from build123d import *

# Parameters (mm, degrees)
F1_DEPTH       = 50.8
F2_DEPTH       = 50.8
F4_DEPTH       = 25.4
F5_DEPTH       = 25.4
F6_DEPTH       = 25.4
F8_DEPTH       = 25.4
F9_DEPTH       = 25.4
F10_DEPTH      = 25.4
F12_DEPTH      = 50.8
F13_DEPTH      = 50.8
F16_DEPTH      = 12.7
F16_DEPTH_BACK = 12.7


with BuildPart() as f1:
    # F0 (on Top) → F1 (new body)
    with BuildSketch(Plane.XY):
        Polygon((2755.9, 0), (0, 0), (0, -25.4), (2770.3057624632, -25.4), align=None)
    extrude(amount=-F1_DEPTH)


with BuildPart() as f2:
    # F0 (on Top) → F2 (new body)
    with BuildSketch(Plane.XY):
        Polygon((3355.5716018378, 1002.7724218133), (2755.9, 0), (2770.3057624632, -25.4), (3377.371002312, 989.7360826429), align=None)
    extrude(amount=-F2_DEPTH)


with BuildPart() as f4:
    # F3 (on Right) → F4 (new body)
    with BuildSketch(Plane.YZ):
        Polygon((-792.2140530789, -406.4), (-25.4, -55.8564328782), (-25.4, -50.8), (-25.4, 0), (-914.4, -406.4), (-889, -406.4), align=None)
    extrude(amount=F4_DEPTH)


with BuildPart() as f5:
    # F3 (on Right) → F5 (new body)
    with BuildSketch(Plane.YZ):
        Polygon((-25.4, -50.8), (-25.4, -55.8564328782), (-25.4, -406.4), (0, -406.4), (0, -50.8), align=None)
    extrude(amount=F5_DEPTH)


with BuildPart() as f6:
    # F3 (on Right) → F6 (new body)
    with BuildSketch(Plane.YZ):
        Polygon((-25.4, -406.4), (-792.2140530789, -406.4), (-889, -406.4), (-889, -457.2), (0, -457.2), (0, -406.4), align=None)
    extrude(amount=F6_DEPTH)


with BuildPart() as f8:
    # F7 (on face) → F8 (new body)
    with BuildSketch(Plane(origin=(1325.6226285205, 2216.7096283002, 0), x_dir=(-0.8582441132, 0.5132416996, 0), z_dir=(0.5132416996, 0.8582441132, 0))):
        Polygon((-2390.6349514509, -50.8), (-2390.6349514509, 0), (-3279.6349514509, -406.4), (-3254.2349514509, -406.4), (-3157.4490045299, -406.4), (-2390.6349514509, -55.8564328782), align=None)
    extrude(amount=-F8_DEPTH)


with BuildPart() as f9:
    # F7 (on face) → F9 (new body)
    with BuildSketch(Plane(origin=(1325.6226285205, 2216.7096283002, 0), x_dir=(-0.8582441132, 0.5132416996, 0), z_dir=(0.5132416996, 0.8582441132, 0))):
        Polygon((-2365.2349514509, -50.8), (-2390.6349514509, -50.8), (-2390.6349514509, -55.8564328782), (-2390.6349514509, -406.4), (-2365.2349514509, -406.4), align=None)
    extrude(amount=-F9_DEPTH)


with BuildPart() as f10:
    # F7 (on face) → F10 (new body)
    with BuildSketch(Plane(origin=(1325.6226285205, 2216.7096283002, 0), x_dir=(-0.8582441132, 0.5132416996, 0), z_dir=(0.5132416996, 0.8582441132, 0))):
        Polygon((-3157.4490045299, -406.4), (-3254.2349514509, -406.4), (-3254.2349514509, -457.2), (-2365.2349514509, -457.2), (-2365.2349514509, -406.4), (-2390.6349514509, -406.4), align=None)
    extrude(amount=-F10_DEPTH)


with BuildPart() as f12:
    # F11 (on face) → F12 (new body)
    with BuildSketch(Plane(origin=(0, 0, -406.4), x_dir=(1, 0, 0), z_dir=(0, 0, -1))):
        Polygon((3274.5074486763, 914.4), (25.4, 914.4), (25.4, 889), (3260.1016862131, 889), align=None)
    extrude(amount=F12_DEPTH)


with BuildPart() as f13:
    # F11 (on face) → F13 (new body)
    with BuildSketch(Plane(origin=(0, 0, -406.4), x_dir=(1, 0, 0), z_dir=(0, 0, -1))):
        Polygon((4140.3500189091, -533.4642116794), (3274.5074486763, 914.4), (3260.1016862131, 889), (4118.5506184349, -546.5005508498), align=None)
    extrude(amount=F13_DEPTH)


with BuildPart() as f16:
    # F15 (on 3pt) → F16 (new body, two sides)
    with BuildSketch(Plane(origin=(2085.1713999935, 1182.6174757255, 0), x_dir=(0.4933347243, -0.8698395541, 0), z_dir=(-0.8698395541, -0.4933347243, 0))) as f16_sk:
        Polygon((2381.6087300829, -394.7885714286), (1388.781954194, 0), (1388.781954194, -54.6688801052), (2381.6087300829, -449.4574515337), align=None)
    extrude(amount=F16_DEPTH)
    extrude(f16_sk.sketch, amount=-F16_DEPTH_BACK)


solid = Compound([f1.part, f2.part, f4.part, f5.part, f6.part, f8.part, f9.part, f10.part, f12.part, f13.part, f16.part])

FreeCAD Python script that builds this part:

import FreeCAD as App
import Part
import Sketcher
Q = App.Units.Quantity

doc = App.newDocument("Part")
body = doc.addObject("PartDesign::Body", "Body")

# Sketch on XY plane
sketch1 = body.newObject("Sketcher::SketchObject", "Sketch")
sketch1.AttachmentSupport = (doc.getObject("XY_Plane"), [""])
sketch1.MapMode = "FlatFace"
sketch1.addGeometry(Part.LineSegment(App.Vector(2756, 0, 0), App.Vector(0, 0, 0)), False)
sketch1.addGeometry(Part.LineSegment(App.Vector(0, 0, 0), App.Vector(0, -25, 0)), False)
sketch1.addGeometry(Part.LineSegment(App.Vector(0, -25, 0), App.Vector(2770, -25, 0)), False)
sketch1.addGeometry(Part.LineSegment(App.Vector(2770, -25, 0), App.Vector(2756, 0, 0)), False)
sketch1.addConstraint(Sketcher.Constraint("Coincident", 0, 2, 1, 1))
sketch1.addConstraint(Sketcher.Constraint("Coincident", 1, 2, 2, 1))
sketch1.addConstraint(Sketcher.Constraint("Coincident", 2, 2, 3, 1))
sketch1.addConstraint(Sketcher.Constraint("Coincident", 3, 2, 0, 1))
sketch1.addConstraint(Sketcher.Constraint("Horizontal", 0))
sketch1.addConstraint(Sketcher.Constraint("Vertical", 1))
sketch1.addConstraint(Sketcher.Constraint("Horizontal", 2))
sketch1.addConstraint(Sketcher.Constraint("Coincident", 0, 2, -1, 1))
sketch1.addConstraint(Sketcher.Constraint("DistanceY", 1, 2, 1, 1, Q("1 in")))
sketch1.addConstraint(Sketcher.Constraint("DistanceX", 0, 2, 0, 1, Q("108.5 in")))
sketch1.addConstraint(Sketcher.Constraint("Angle", 3, Q("119.56 deg")))
pad1 = body.newObject("PartDesign::Pad", "Pad")
pad1.Profile = sketch1
pad1.Length = Q("2 in")
pad1.Reversed = True
body2 = doc.addObject("PartDesign::Body", "Body001")

# Sketch on XY plane
sketch2 = body2.newObject("Sketcher::SketchObject", "Sketch001")
sketch2.AttachmentSupport = (doc.getObject("XY_Plane001"), [""])
sketch2.MapMode = "FlatFace"
sketch2.addGeometry(Part.LineSegment(App.Vector(3356, 1003, 0), App.Vector(2756, 0, 0)), False)
sketch2.addGeometry(Part.LineSegment(App.Vector(2756, 0, 0), App.Vector(2770, -25, 0)), False)
sketch2.addGeometry(Part.LineSegment(App.Vector(2770, -25, 0), App.Vector(3377, 990, 0)), False)
sketch2.addGeometry(Part.LineSegment(App.Vector(3377, 990, 0), App.Vector(3356, 1003, 0)), False)
sketch2.addConstraint(Sketcher.Constraint("Coincident", 0, 2, 1, 1))
sketch2.addConstraint(Sketcher.Constraint("Coincident", 1, 2, 2, 1))
sketch2.addConstraint(Sketcher.Constraint("Coincident", 2, 2, 3, 1))
sketch2.addConstraint(Sketcher.Constraint("Coincident", 3, 2, 0, 1))
sketch2.addConstraint(Sketcher.Constraint("PointOnObject", 0, 2, -1))
sketch2.addConstraint(Sketcher.Constraint("Parallel", 0, 2))
sketch2.addConstraint(Sketcher.Constraint("Perpendicular", 2, 3))
sketch2.addConstraint(Sketcher.Constraint("Distance", 0, Q("46 in")))
sketch2.addConstraint(Sketcher.Constraint("Distance", 3, Q("1 in")))
sketch2.addConstraint(Sketcher.Constraint("DistanceY", 1, 2, -1, 1, Q("1 in")))
sketch2.addConstraint(Sketcher.Constraint("DistanceX", -1, 1, 0, 2, Q("108.5 in")))
sketch2.addConstraint(Sketcher.Constraint("Angle", 0, Q("-120.88 deg")))
pad2 = body2.newObject("PartDesign::Pad", "Pad001")
pad2.Profile = sketch2
pad2.Length = Q("2 in")
pad2.Reversed = True
body3 = doc.addObject("PartDesign::Body", "Body002")

# Sketch on YZ plane
sketch3 = body3.newObject("Sketcher::SketchObject", "Sketch002")
sketch3.AttachmentSupport = (doc.getObject("YZ_Plane002"), [""])
sketch3.MapMode = "FlatFace"
sketch3.addGeometry(Part.LineSegment(App.Vector(-792, -406, 0), App.Vector(-25, -56, 0)), False)
sketch3.addGeometry(Part.LineSegment(App.Vector(-25, -56, 0), App.Vector(-25, 0, 0)), False)
sketch3.addGeometry(Part.LineSegment(App.Vector(-25, 0, 0), App.Vector(-914, -406, 0)), False)
sketch3.addGeometry(Part.LineSegment(App.Vector(-914, -406, 0), App.Vector(-792, -406, 0)), False)
sketch3.addConstraint(Sketcher.Constraint("Coincident", 0, 2, 1, 1))
sketch3.addConstraint(Sketcher.Constraint("Coincident", 1, 2, 2, 1))
sketch3.addConstraint(Sketcher.Constraint("Coincident", 2, 2, 3, 1))
sketch3.addConstraint(Sketcher.Constraint("Coincident", 3, 2, 0, 1))
sketch3.addConstraint(Sketcher.Constraint("Vertical", 1))
sketch3.addConstraint(Sketcher.Constraint("Horizontal", 3))
sketch3.addConstraint(Sketcher.Constraint("PointOnObject", 1, 2, -1))
sketch3.addConstraint(Sketcher.Constraint("Parallel", 0, 2))
sketch3.addConstraint(Sketcher.Constraint("DistanceX", 0, 2, -1, 1, Q("1 in")))
sketch3.addConstraint(Sketcher.Constraint("DistanceX", 2, 2, -1, 1, Q("36 in")))
sketch3.addConstraint(Sketcher.Constraint("DistanceY", 2, 2, -1, 1, Q("16 in")))
sketch3.addConstraint(Sketcher.Constraint("Distance", 0, 843.139718))
pad3 = body3.newObject("PartDesign::Pad", "Pad002")
pad3.Profile = sketch3
pad3.Length = Q("1 in")
body4 = doc.addObject("PartDesign::Body", "Body003")

# Sketch on YZ plane
sketch4 = body4.newObject("Sketcher::SketchObject", "Sketch003")
sketch4.AttachmentSupport = (doc.getObject("YZ_Plane003"), [""])
sketch4.MapMode = "FlatFace"
sketch4.addGeometry(Part.LineSegment(App.Vector(-25, -51, 0), App.Vector(-25, -406, 0)), False)
sketch4.addGeometry(Part.LineSegment(App.Vector(-25, -406, 0), App.Vector(0, -406, 0)), False)
sketch4.addGeometry(Part.LineSegment(App.Vector(0, -406, 0), App.Vector(0, -51, 0)), False)
sketch4.addGeometry(Part.LineSegment(App.Vector(0, -51, 0), App.Vector(-25, -51, 0)), False)
sketch4.addConstraint(Sketcher.Constraint("Coincident", 0, 2, 1, 1))
sketch4.addConstraint(Sketcher.Constraint("Coincident", 1, 2, 2, 1))
sketch4.addConstraint(Sketcher.Constraint("Coincident", 2, 2, 3, 1))
sketch4.addConstraint(Sketcher.Constraint("Coincident", 3, 2, 0, 1))
sketch4.addConstraint(Sketcher.Constraint("Vertical", 0))
sketch4.addConstraint(Sketcher.Constraint("Horizontal", 1))
sketch4.addConstraint(Sketcher.Constraint("Vertical", 2))
sketch4.addConstraint(Sketcher.Constraint("Horizontal", 3))
sketch4.addConstraint(Sketcher.Constraint("PointOnObject", 1, 2, -2))
sketch4.addConstraint(Sketcher.Constraint("DistanceX", 1, 1, 1, 2, Q("1 in")))
sketch4.addConstraint(Sketcher.Constraint("DistanceY", 0, 2, 0, 1, Q("14 in")))
sketch4.addConstraint(Sketcher.Constraint("DistanceY", 0, 2, -1, 1, Q("16 in")))
pad4 = body4.newObject("PartDesign::Pad", "Pad003")
pad4.Profile = sketch4
pad4.Length = Q("1 in")
body5 = doc.addObject("PartDesign::Body", "Body004")

# Sketch on YZ plane
sketch5 = body5.newObject("Sketcher::SketchObject", "Sketch004")
sketch5.AttachmentSupport = (doc.getObject("YZ_Plane004"), [""])
sketch5.MapMode = "FlatFace"
sketch5.addGeometry(Part.LineSegment(App.Vector(-889, -406, 0), App.Vector(-889, -457, 0)), False)
sketch5.addGeometry(Part.LineSegment(App.Vector(-889, -457, 0), App.Vector(0, -457, 0)), False)
sketch5.addGeometry(Part.LineSegment(App.Vector(0, -457, 0), App.Vector(0, -406, 0)), False)
sketch5.addGeometry(Part.LineSegment(App.Vector(0, -406, 0), App.Vector(-889, -406, 0)), False)
sketch5.addConstraint(Sketcher.Constraint("Coincident", 0, 2, 1, 1))
sketch5.addConstraint(Sketcher.Constraint("Coincident", 1, 2, 2, 1))
sketch5.addConstraint(Sketcher.Constraint("Coincident", 2, 2, 3, 1))
sketch5.addConstraint(Sketcher.Constraint("Coincident", 3, 2, 0, 1))
sketch5.addConstraint(Sketcher.Constraint("Vertical", 0))
sketch5.addConstraint(Sketcher.Constraint("Horizontal", 1))
sketch5.addConstraint(Sketcher.Constraint("Vertical", 2))
sketch5.addConstraint(Sketcher.Constraint("Horizontal", 3))
sketch5.addConstraint(Sketcher.Constraint("PointOnObject", 1, 2, -2))
sketch5.addConstraint(Sketcher.Constraint("DistanceX", 1, 1, 1, 2, Q("35 in")))
sketch5.addConstraint(Sketcher.Constraint("DistanceY", 0, 2, 0, 1, Q("2 in")))
sketch5.addConstraint(Sketcher.Constraint("DistanceY", 0, 2, -1, 1, Q("18 in")))
pad5 = body5.newObject("PartDesign::Pad", "Pad004")
pad5.Profile = sketch5
pad5.Length = Q("1 in")
body6 = doc.addObject("PartDesign::Body", "Body005")

# Sketch on an angled plane
sketch6 = body6.newObject("Sketcher::SketchObject", "Sketch005")
sketch6.Placement = App.Placement(App.Vector(1325.622629, 2216.709628, 0), App.Rotation(App.Vector(-0.858244113, 0.5132417, 0), App.Vector(0, 0, 1), App.Vector(0.5132417, 0.858244113, 0), "ZXY"))
sketch6.addGeometry(Part.LineSegment(App.Vector(-2391, 0, 0), App.Vector(-3280, -406, 0)), False)
sketch6.addGeometry(Part.LineSegment(App.Vector(-3280, -406, 0), App.Vector(-3157, -406, 0)), False)
sketch6.addGeometry(Part.LineSegment(App.Vector(-3157, -406, 0), App.Vector(-2391, -56, 0)), False)
sketch6.addGeometry(Part.LineSegment(App.Vector(-2391, -56, 0), App.Vector(-2391, 0, 0)), False)
sketch6.addConstraint(Sketcher.Constraint("Coincident", 0, 2, 1, 1))
sketch6.addConstraint(Sketcher.Constraint("Coincident", 1, 2, 2, 1))
sketch6.addConstraint(Sketcher.Constraint("Coincident", 2, 2, 3, 1))
sketch6.addConstraint(Sketcher.Constraint("Coincident", 3, 2, 0, 1))
sketch6.addConstraint(Sketcher.Constraint("Horizontal", 1))
sketch6.addConstraint(Sketcher.Constraint("Vertical", 3))
sketch6.addConstraint(Sketcher.Constraint("PointOnObject", 3, 2, -1))
sketch6.addConstraint(Sketcher.Constraint("Parallel", 0, 2))
sketch6.addConstraint(Sketcher.Constraint("DistanceY", 0, 2, -1, 1, Q("16 in")))
sketch6.addConstraint(Sketcher.Constraint("DistanceX", 0, 2, 2, 2, Q("35 in")))
sketch6.addConstraint(Sketcher.Constraint("Distance", 2, 843.139718))
sketch6.addConstraint(Sketcher.Constraint("DistanceX", 0, 2, -1, 1, 3279.634952))
pad6 = body6.newObject("PartDesign::Pad", "Pad005")
pad6.Profile = sketch6
pad6.Length = Q("1 in")
pad6.Reversed = True
body7 = doc.addObject("PartDesign::Body", "Body006")

# Sketch on an angled plane
sketch7 = body7.newObject("Sketcher::SketchObject", "Sketch006")
sketch7.Placement = App.Placement(App.Vector(1325.622629, 2216.709628, 0), App.Rotation(App.Vector(-0.858244113, 0.5132417, 0), App.Vector(0, 0, 1), App.Vector(0.5132417, 0.858244113, 0), "ZXY"))
sketch7.addGeometry(Part.LineSegment(App.Vector(-2365, -51, 0), App.Vector(-2391, -51, 0)), False)
sketch7.addGeometry(Part.LineSegment(App.Vector(-2391, -51, 0), App.Vector(-2391, -406, 0)), False)
sketch7.addGeometry(Part.LineSegment(App.Vector(-2391, -406, 0), App.Vector(-2365, -406, 0)), False)
sketch7.addGeometry(Part.LineSegment(App.Vector(-2365, -406, 0), App.Vector(-2365, -51, 0)), False)
sketch7.addConstraint(Sketcher.Constraint("Coincident", 0, 2, 1, 1))
sketch7.addConstraint(Sketcher.Constraint("Coincident", 1, 2, 2, 1))
sketch7.addConstraint(Sketcher.Constraint("Coincident", 2, 2, 3, 1))
sketch7.addConstraint(Sketcher.Constraint("Coincident", 3, 2, 0, 1))
sketch7.addConstraint(Sketcher.Constraint("Horizontal", 0))
sketch7.addConstraint(Sketcher.Constraint("Vertical", 1))
sketch7.addConstraint(Sketcher.Constraint("Horizontal", 2))
sketch7.addConstraint(Sketcher.Constraint("Vertical", 3))
sketch7.addConstraint(Sketcher.Constraint("DistanceX", 0, 2, 0, 1, Q("1 in")))
sketch7.addConstraint(Sketcher.Constraint("DistanceY", 1, 2, 1, 1, Q("14 in")))
sketch7.addConstraint(Sketcher.Constraint("DistanceY", 0, 2, -1, 1, Q("2 in")))
sketch7.addConstraint(Sketcher.Constraint("DistanceX", 0, 2, -1, 1, 2390.634952))
pad7 = body7.newObject("PartDesign::Pad", "Pad006")
pad7.Profile = sketch7
pad7.Length = Q("1 in")
pad7.Reversed = True
body8 = doc.addObject("PartDesign::Body", "Body007")

# Sketch on an angled plane
sketch8 = body8.newObject("Sketcher::SketchObject", "Sketch007")
sketch8.Placement = App.Placement(App.Vector(1325.622629, 2216.709628, 0), App.Rotation(App.Vector(-0.858244113, 0.5132417, 0), App.Vector(0, 0, 1), App.Vector(0.5132417, 0.858244113, 0), "ZXY"))
sketch8.addGeometry(Part.LineSegment(App.Vector(-3254, -406, 0), App.Vector(-3254, -457, 0)), False)
sketch8.addGeometry(Part.LineSegment(App.Vector(-3254, -457, 0), App.Vector(-2365, -457, 0)), False)
sketch8.addGeometry(Part.LineSegment(App.Vector(-2365, -457, 0), App.Vector(-2365, -406, 0)), False)
sketch8.addGeometry(Part.LineSegment(App.Vector(-2365, -406, 0), App.Vector(-3254, -406, 0)), False)
sketch8.addConstraint(Sketcher.Constraint("Coincident", 0, 2, 1, 1))
sketch8.addConstraint(Sketcher.Constraint("Coincident", 1, 2, 2, 1))
sketch8.addConstraint(Sketcher.Constraint("Coincident", 2, 2, 3, 1))
sketch8.addConstraint(Sketcher.Constraint("Coincident", 3, 2, 0, 1))
sketch8.addConstraint(Sketcher.Constraint("Vertical", 0))
sketch8.addConstraint(Sketcher.Constraint("Horizontal", 1))
sketch8.addConstraint(Sketcher.Constraint("Vertical", 2))
sketch8.addConstraint(Sketcher.Constraint("Horizontal", 3))
sketch8.addConstraint(Sketcher.Constraint("DistanceX", 1, 1, 1, 2, Q("35 in")))
sketch8.addConstraint(Sketcher.Constraint("DistanceY", 0, 2, 0, 1, Q("2 in")))
sketch8.addConstraint(Sketcher.Constraint("DistanceY", 0, 2, -1, 1, Q("18 in")))
sketch8.addConstraint(Sketcher.Constraint("DistanceX", 0, 2, -1, 1, 3254.234952))
pad8 = body8.newObject("PartDesign::Pad", "Pad007")
pad8.Profile = sketch8
pad8.Length = Q("1 in")
pad8.Reversed = True
body9 = doc.addObject("PartDesign::Body", "Body008")

# Sketch on XY plane
sketch9 = body9.newObject("Sketcher::SketchObject", "Sketch008")
sketch9.AttachmentSupport = (doc.getObject("XY_Plane008"), [""])
sketch9.MapMode = "FlatFace"
sketch9.AttachmentOffset = App.Placement(App.Vector(0, 0, -16 * 25.4), App.Rotation())
sketch9.addGeometry(Part.LineSegment(App.Vector(3275, -914, 0), App.Vector(25, -914, 0)), False)
sketch9.addGeometry(Part.LineSegment(App.Vector(25, -914, 0), App.Vector(25, -889, 0)), False)
sketch9.addGeometry(Part.LineSegment(App.Vector(25, -889, 0), App.Vector(3260, -889, 0)), False)
sketch9.addGeometry(Part.LineSegment(App.Vector(3260, -889, 0), App.Vector(3275, -914, 0)), False)
sketch9.addConstraint(Sketcher.Constraint("Coincident", 0, 2, 1, 1))
sketch9.addConstraint(Sketcher.Constraint("Coincident", 1, 2, 2, 1))
sketch9.addConstraint(Sketcher.Constraint("Coincident", 2, 2, 3, 1))
sketch9.addConstraint(Sketcher.Constraint("Coincident", 3, 2, 0, 1))
sketch9.addConstraint(Sketcher.Constraint("Horizontal", 0))
sketch9.addConstraint(Sketcher.Constraint("Vertical", 1))
sketch9.addConstraint(Sketcher.Constraint("Horizontal", 2))
sketch9.addConstraint(Sketcher.Constraint("DistanceY", 1, 1, 1, 2, Q("1 in")))
sketch9.addConstraint(Sketcher.Constraint("DistanceX", -1, 1, 0, 2, Q("1 in")))
sketch9.addConstraint(Sketcher.Constraint("DistanceY", 0, 2, -1, 1, Q("36 in")))
sketch9.addConstraint(Sketcher.Constraint("Angle", 3, Q("-60.44 deg")))
sketch9.addConstraint(Sketcher.Constraint("DistanceX", 0, 2, 0, 1, 3249.107449))
pad9 = body9.newObject("PartDesign::Pad", "Pad008")
pad9.Profile = sketch9
pad9.Length = Q("2 in")
pad9.Reversed = True
body10 = doc.addObject("PartDesign::Body", "Body009")

# Sketch on XY plane
sketch10 = body10.newObject("Sketcher::SketchObject", "Sketch009")
sketch10.AttachmentSupport = (doc.getObject("XY_Plane009"), [""])
sketch10.MapMode = "FlatFace"
sketch10.AttachmentOffset = App.Placement(App.Vector(0, 0, -16 * 25.4), App.Rotation())
sketch10.addGeometry(Part.LineSegment(App.Vector(4140, 533, 0), App.Vector(3275, -914, 0)), False)
sketch10.addGeometry(Part.LineSegment(App.Vector(3275, -914, 0), App.Vector(3260, -889, 0)), False)
sketch10.addGeometry(Part.LineSegment(App.Vector(3260, -889, 0), App.Vector(4119, 547, 0)), False)
sketch10.addGeometry(Part.LineSegment(App.Vector(4119, 547, 0), App.Vector(4140, 533, 0)), False)
sketch10.addConstraint(Sketcher.Constraint("Coincident", 0, 2, 1, 1))
sketch10.addConstraint(Sketcher.Constraint("Coincident", 1, 2, 2, 1))
sketch10.addConstraint(Sketcher.Constraint("Coincident", 2, 2, 3, 1))
sketch10.addConstraint(Sketcher.Constraint("Coincident", 3, 2, 0, 1))
sketch10.addConstraint(Sketcher.Constraint("Parallel", 0, 2))
sketch10.addConstraint(Sketcher.Constraint("Perpendicular", 2, 3))
sketch10.addConstraint(Sketcher.Constraint("Distance", 3, Q("1 in")))
sketch10.addConstraint(Sketcher.Constraint("DistanceY", 0, 2, -1, 1, Q("36 in")))
sketch10.addConstraint(Sketcher.Constraint("DistanceY", 1, 2, -1, 1, Q("35 in")))
sketch10.addConstraint(Sketcher.Constraint("Angle", 0, Q("-120.88 deg")))
sketch10.addConstraint(Sketcher.Constraint("Distance", 0, 1687.007449))
sketch10.addConstraint(Sketcher.Constraint("DistanceX", -1, 1, 0, 2, 3274.507449))
pad10 = body10.newObject("PartDesign::Pad", "Pad009")
pad10.Profile = sketch10
pad10.Length = Q("2 in")
pad10.Reversed = True
body11 = doc.addObject("PartDesign::Body", "Body010")

# Sketch on an angled plane
sketch11 = body11.newObject("Sketcher::SketchObject", "Sketch010")
sketch11.Placement = App.Placement(App.Vector(2085.1714, 1182.617476, 0), App.Rotation(App.Vector(0.493334724, -0.869839554, 0), App.Vector(0, 0, 1), App.Vector(-0.869839554, -0.493334724, 0), "ZXY"))
sketch11.addGeometry(Part.LineSegment(App.Vector(2382, -395, 0), App.Vector(1389, 0, 0)), False)
sketch11.addGeometry(Part.LineSegment(App.Vector(1389, 0, 0), App.Vector(1389, -55, 0)), False)
sketch11.addGeometry(Part.LineSegment(App.Vector(1389, -55, 0), App.Vector(2382, -449, 0)), False)
sketch11.addGeometry(Part.LineSegment(App.Vector(2382, -449, 0), App.Vector(2382, -395, 0)), False)
sketch11.addConstraint(Sketcher.Constraint("Coincident", 0, 2, 1, 1))
sketch11.addConstraint(Sketcher.Constraint("Coincident", 1, 2, 2, 1))
sketch11.addConstraint(Sketcher.Constraint("Coincident", 2, 2, 3, 1))
sketch11.addConstraint(Sketcher.Constraint("Coincident", 3, 2, 0, 1))
sketch11.addConstraint(Sketcher.Constraint("Vertical", 1))
sketch11.addConstraint(Sketcher.Constraint("Vertical", 3))
sketch11.addConstraint(Sketcher.Constraint("PointOnObject", 0, 2, -1))
sketch11.addConstraint(Sketcher.Constraint("Parallel", 0, 2))
sketch11.addConstraint(Sketcher.Constraint("DistanceY", 1, 2, 1, 1, 54.66888))
sketch11.addConstraint(Sketcher.Constraint("DistanceX", -1, 1, 2, 2, 2381.608729))
sketch11.addConstraint(Sketcher.Constraint("DistanceY", 2, 2, -1, 1, 449.457451))
sketch11.addConstraint(Sketcher.Constraint("Distance", 0, 1068.439527))
pad11 = body11.newObject("PartDesign::Pad", "Pad010")
pad11.Profile = sketch11
pad11.Type = "TwoLengths"
pad11.Length = Q("0.5 in")
pad11.Length2 = Q("0.5 in")

doc.recompute()
